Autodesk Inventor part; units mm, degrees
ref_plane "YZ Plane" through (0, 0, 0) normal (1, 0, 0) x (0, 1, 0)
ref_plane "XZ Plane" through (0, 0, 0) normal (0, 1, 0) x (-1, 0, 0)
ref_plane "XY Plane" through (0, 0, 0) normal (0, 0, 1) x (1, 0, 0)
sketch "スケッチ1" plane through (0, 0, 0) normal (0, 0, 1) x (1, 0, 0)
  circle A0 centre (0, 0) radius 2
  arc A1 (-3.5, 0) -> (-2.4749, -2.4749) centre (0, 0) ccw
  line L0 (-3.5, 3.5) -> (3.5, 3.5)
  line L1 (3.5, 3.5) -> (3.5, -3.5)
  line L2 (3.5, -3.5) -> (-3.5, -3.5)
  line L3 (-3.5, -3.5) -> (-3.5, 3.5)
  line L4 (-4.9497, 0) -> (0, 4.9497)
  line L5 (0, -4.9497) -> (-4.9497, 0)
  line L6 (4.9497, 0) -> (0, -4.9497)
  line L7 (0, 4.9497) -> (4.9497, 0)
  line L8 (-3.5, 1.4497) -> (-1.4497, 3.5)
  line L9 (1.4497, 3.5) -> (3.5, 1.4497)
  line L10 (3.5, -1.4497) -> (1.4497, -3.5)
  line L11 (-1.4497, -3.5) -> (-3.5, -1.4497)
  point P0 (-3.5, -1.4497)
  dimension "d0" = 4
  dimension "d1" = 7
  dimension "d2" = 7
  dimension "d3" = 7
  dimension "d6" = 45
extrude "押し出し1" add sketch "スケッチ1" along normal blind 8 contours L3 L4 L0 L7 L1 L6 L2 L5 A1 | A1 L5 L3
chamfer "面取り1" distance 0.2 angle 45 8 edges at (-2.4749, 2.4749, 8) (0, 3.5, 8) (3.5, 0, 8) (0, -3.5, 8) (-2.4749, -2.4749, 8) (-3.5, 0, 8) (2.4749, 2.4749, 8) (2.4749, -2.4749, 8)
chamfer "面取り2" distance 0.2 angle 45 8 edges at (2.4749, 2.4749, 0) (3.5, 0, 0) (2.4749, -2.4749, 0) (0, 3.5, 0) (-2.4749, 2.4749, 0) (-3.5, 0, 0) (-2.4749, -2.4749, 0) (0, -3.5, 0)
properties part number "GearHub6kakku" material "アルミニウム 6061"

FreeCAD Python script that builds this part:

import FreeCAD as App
import Part
import Sketcher

V = App.Vector
Q = App.Units.Quantity


def edges_at(feature, points):
    """Names of the edges that pass closest to the given points."""
    edges = feature.Shape.Edges
    near = lambda p: min(range(len(edges)), key=lambda i: edges[i].distToShape(Part.Vertex(*p))[0])
    return sorted({f"Edge{near(p) + 1}" for p in points})

doc = App.newDocument("Part")
body = doc.addObject("PartDesign::Body", "Body")

# Sketch on XY plane
sketch1 = body.newObject("Sketcher::SketchObject", "Sketch")
sketch1.AttachmentSupport = (doc.getObject("XY_Plane"), [""])
sketch1.MapMode = "FlatFace"
sketch1.addGeometry(Part.LineSegment(V(-3.5, 1.4497, 0), V(-3.5, -1.4497, 0)), False)
sketch1.addGeometry(Part.LineSegment(V(-3.5, -1.4497, 0), V(-1.4497, -3.5, 0)), False)
sketch1.addGeometry(Part.LineSegment(V(-1.4497, -3.5, 0), V(1.4497, -3.5, 0)), False)
sketch1.addGeometry(Part.LineSegment(V(1.4497, -3.5, 0), V(3.5, -1.4497, 0)), False)
sketch1.addGeometry(Part.LineSegment(V(3.5, -1.4497, 0), V(3.5, 1.4497, 0)), False)
sketch1.addGeometry(Part.LineSegment(V(3.5, 1.4497, 0), V(1.4497, 3.5, 0)), False)
sketch1.addGeometry(Part.LineSegment(V(1.4497, 3.5, 0), V(-1.4497, 3.5, 0)), False)
sketch1.addGeometry(Part.LineSegment(V(-1.4497, 3.5, 0), V(-3.5, 1.4497, 0)), False)
sketch1.addGeometry(Part.Circle(V(0, 0, 0), V(0, 0, 1), 2), False)
sketch1.addConstraint(Sketcher.Constraint("Coincident", 0, 2, 1, 1))
sketch1.addConstraint(Sketcher.Constraint("Coincident", 1, 2, 2, 1))
sketch1.addConstraint(Sketcher.Constraint("Coincident", 2, 2, 3, 1))
sketch1.addConstraint(Sketcher.Constraint("Coincident", 3, 2, 4, 1))
sketch1.addConstraint(Sketcher.Constraint("Coincident", 4, 2, 5, 1))
sketch1.addConstraint(Sketcher.Constraint("Coincident", 5, 2, 6, 1))
sketch1.addConstraint(Sketcher.Constraint("Coincident", 6, 2, 7, 1))
sketch1.addConstraint(Sketcher.Constraint("Coincident", 7, 2, 0, 1))
sketch1.addConstraint(Sketcher.Constraint("Vertical", 0))
sketch1.addConstraint(Sketcher.Constraint("Horizontal", 2))
sketch1.addConstraint(Sketcher.Constraint("Vertical", 4))
sketch1.addConstraint(Sketcher.Constraint("Horizontal", 6))
sketch1.addConstraint(Sketcher.Constraint("Coincident", 8, 3, -1, 1))
sketch1.addConstraint(Sketcher.Constraint("Symmetric", 0, 2, 4, 2, -1, 1))
sketch1.addConstraint(Sketcher.Constraint("Symmetric", 1, 2, 5, 2, -1, 1))
sketch1.addConstraint(Sketcher.Constraint("Perpendicular", 1, 3))
sketch1.addConstraint(Sketcher.Constraint("Perpendicular", 5, 7))
sketch1.addConstraint(Sketcher.Constraint("Horizontal", 0, 2, 3, 2))
sketch1.addConstraint(Sketcher.Constraint("Horizontal", 4, 2, 7, 2))
sketch1.addConstraint(Sketcher.Constraint("Vertical", 2, 2, 5, 2))
sketch1.addConstraint(Sketcher.Constraint("Equal", 6, 0))
sketch1.addConstraint(Sketcher.Constraint("Diameter", 8, Q("4 mm")))
sketch1.addConstraint(Sketcher.Constraint("DistanceX", 0, 2, 3, 2, Q("7 mm")))
sketch1.addConstraint(Sketcher.Constraint("DistanceX", 2, 1, 2, 2, Q("2.8994 mm")))
pad1 = body.newObject("PartDesign::Pad", "Pad")
pad1.Profile = sketch1
pad1.Length = 8
doc.recompute()

chamfer = body.newObject("PartDesign::Chamfer", "Chamfer")
chamfer.Base = (pad1, edges_at(pad1, [
    (-2.475, 2.475, 8),
    (0, 3.5, 8),
    (3.5, 0, 8),
    (0, -3.5, 8),
    (-2.475, -2.475, 8),
    (-3.5, 0, 8),
    (2.475, 2.475, 8),
    (2.475, -2.475, 8),
]))
chamfer.Size = 0.2
doc.recompute()

chamfer2 = body.newObject("PartDesign::Chamfer", "Chamfer001")
chamfer2.Base = (chamfer, edges_at(chamfer, [
    (2.475, 2.475, 0),
    (3.5, 0, 0),
    (2.475, -2.475, 0),
    (0, 3.5, 0),
    (-2.475, 2.475, 0),
    (-3.5, 0, 0),
    (-2.475, -2.475, 0),
    (0, -3.5, 0),
]))
chamfer2.Size = 0.2

doc.recompute()
